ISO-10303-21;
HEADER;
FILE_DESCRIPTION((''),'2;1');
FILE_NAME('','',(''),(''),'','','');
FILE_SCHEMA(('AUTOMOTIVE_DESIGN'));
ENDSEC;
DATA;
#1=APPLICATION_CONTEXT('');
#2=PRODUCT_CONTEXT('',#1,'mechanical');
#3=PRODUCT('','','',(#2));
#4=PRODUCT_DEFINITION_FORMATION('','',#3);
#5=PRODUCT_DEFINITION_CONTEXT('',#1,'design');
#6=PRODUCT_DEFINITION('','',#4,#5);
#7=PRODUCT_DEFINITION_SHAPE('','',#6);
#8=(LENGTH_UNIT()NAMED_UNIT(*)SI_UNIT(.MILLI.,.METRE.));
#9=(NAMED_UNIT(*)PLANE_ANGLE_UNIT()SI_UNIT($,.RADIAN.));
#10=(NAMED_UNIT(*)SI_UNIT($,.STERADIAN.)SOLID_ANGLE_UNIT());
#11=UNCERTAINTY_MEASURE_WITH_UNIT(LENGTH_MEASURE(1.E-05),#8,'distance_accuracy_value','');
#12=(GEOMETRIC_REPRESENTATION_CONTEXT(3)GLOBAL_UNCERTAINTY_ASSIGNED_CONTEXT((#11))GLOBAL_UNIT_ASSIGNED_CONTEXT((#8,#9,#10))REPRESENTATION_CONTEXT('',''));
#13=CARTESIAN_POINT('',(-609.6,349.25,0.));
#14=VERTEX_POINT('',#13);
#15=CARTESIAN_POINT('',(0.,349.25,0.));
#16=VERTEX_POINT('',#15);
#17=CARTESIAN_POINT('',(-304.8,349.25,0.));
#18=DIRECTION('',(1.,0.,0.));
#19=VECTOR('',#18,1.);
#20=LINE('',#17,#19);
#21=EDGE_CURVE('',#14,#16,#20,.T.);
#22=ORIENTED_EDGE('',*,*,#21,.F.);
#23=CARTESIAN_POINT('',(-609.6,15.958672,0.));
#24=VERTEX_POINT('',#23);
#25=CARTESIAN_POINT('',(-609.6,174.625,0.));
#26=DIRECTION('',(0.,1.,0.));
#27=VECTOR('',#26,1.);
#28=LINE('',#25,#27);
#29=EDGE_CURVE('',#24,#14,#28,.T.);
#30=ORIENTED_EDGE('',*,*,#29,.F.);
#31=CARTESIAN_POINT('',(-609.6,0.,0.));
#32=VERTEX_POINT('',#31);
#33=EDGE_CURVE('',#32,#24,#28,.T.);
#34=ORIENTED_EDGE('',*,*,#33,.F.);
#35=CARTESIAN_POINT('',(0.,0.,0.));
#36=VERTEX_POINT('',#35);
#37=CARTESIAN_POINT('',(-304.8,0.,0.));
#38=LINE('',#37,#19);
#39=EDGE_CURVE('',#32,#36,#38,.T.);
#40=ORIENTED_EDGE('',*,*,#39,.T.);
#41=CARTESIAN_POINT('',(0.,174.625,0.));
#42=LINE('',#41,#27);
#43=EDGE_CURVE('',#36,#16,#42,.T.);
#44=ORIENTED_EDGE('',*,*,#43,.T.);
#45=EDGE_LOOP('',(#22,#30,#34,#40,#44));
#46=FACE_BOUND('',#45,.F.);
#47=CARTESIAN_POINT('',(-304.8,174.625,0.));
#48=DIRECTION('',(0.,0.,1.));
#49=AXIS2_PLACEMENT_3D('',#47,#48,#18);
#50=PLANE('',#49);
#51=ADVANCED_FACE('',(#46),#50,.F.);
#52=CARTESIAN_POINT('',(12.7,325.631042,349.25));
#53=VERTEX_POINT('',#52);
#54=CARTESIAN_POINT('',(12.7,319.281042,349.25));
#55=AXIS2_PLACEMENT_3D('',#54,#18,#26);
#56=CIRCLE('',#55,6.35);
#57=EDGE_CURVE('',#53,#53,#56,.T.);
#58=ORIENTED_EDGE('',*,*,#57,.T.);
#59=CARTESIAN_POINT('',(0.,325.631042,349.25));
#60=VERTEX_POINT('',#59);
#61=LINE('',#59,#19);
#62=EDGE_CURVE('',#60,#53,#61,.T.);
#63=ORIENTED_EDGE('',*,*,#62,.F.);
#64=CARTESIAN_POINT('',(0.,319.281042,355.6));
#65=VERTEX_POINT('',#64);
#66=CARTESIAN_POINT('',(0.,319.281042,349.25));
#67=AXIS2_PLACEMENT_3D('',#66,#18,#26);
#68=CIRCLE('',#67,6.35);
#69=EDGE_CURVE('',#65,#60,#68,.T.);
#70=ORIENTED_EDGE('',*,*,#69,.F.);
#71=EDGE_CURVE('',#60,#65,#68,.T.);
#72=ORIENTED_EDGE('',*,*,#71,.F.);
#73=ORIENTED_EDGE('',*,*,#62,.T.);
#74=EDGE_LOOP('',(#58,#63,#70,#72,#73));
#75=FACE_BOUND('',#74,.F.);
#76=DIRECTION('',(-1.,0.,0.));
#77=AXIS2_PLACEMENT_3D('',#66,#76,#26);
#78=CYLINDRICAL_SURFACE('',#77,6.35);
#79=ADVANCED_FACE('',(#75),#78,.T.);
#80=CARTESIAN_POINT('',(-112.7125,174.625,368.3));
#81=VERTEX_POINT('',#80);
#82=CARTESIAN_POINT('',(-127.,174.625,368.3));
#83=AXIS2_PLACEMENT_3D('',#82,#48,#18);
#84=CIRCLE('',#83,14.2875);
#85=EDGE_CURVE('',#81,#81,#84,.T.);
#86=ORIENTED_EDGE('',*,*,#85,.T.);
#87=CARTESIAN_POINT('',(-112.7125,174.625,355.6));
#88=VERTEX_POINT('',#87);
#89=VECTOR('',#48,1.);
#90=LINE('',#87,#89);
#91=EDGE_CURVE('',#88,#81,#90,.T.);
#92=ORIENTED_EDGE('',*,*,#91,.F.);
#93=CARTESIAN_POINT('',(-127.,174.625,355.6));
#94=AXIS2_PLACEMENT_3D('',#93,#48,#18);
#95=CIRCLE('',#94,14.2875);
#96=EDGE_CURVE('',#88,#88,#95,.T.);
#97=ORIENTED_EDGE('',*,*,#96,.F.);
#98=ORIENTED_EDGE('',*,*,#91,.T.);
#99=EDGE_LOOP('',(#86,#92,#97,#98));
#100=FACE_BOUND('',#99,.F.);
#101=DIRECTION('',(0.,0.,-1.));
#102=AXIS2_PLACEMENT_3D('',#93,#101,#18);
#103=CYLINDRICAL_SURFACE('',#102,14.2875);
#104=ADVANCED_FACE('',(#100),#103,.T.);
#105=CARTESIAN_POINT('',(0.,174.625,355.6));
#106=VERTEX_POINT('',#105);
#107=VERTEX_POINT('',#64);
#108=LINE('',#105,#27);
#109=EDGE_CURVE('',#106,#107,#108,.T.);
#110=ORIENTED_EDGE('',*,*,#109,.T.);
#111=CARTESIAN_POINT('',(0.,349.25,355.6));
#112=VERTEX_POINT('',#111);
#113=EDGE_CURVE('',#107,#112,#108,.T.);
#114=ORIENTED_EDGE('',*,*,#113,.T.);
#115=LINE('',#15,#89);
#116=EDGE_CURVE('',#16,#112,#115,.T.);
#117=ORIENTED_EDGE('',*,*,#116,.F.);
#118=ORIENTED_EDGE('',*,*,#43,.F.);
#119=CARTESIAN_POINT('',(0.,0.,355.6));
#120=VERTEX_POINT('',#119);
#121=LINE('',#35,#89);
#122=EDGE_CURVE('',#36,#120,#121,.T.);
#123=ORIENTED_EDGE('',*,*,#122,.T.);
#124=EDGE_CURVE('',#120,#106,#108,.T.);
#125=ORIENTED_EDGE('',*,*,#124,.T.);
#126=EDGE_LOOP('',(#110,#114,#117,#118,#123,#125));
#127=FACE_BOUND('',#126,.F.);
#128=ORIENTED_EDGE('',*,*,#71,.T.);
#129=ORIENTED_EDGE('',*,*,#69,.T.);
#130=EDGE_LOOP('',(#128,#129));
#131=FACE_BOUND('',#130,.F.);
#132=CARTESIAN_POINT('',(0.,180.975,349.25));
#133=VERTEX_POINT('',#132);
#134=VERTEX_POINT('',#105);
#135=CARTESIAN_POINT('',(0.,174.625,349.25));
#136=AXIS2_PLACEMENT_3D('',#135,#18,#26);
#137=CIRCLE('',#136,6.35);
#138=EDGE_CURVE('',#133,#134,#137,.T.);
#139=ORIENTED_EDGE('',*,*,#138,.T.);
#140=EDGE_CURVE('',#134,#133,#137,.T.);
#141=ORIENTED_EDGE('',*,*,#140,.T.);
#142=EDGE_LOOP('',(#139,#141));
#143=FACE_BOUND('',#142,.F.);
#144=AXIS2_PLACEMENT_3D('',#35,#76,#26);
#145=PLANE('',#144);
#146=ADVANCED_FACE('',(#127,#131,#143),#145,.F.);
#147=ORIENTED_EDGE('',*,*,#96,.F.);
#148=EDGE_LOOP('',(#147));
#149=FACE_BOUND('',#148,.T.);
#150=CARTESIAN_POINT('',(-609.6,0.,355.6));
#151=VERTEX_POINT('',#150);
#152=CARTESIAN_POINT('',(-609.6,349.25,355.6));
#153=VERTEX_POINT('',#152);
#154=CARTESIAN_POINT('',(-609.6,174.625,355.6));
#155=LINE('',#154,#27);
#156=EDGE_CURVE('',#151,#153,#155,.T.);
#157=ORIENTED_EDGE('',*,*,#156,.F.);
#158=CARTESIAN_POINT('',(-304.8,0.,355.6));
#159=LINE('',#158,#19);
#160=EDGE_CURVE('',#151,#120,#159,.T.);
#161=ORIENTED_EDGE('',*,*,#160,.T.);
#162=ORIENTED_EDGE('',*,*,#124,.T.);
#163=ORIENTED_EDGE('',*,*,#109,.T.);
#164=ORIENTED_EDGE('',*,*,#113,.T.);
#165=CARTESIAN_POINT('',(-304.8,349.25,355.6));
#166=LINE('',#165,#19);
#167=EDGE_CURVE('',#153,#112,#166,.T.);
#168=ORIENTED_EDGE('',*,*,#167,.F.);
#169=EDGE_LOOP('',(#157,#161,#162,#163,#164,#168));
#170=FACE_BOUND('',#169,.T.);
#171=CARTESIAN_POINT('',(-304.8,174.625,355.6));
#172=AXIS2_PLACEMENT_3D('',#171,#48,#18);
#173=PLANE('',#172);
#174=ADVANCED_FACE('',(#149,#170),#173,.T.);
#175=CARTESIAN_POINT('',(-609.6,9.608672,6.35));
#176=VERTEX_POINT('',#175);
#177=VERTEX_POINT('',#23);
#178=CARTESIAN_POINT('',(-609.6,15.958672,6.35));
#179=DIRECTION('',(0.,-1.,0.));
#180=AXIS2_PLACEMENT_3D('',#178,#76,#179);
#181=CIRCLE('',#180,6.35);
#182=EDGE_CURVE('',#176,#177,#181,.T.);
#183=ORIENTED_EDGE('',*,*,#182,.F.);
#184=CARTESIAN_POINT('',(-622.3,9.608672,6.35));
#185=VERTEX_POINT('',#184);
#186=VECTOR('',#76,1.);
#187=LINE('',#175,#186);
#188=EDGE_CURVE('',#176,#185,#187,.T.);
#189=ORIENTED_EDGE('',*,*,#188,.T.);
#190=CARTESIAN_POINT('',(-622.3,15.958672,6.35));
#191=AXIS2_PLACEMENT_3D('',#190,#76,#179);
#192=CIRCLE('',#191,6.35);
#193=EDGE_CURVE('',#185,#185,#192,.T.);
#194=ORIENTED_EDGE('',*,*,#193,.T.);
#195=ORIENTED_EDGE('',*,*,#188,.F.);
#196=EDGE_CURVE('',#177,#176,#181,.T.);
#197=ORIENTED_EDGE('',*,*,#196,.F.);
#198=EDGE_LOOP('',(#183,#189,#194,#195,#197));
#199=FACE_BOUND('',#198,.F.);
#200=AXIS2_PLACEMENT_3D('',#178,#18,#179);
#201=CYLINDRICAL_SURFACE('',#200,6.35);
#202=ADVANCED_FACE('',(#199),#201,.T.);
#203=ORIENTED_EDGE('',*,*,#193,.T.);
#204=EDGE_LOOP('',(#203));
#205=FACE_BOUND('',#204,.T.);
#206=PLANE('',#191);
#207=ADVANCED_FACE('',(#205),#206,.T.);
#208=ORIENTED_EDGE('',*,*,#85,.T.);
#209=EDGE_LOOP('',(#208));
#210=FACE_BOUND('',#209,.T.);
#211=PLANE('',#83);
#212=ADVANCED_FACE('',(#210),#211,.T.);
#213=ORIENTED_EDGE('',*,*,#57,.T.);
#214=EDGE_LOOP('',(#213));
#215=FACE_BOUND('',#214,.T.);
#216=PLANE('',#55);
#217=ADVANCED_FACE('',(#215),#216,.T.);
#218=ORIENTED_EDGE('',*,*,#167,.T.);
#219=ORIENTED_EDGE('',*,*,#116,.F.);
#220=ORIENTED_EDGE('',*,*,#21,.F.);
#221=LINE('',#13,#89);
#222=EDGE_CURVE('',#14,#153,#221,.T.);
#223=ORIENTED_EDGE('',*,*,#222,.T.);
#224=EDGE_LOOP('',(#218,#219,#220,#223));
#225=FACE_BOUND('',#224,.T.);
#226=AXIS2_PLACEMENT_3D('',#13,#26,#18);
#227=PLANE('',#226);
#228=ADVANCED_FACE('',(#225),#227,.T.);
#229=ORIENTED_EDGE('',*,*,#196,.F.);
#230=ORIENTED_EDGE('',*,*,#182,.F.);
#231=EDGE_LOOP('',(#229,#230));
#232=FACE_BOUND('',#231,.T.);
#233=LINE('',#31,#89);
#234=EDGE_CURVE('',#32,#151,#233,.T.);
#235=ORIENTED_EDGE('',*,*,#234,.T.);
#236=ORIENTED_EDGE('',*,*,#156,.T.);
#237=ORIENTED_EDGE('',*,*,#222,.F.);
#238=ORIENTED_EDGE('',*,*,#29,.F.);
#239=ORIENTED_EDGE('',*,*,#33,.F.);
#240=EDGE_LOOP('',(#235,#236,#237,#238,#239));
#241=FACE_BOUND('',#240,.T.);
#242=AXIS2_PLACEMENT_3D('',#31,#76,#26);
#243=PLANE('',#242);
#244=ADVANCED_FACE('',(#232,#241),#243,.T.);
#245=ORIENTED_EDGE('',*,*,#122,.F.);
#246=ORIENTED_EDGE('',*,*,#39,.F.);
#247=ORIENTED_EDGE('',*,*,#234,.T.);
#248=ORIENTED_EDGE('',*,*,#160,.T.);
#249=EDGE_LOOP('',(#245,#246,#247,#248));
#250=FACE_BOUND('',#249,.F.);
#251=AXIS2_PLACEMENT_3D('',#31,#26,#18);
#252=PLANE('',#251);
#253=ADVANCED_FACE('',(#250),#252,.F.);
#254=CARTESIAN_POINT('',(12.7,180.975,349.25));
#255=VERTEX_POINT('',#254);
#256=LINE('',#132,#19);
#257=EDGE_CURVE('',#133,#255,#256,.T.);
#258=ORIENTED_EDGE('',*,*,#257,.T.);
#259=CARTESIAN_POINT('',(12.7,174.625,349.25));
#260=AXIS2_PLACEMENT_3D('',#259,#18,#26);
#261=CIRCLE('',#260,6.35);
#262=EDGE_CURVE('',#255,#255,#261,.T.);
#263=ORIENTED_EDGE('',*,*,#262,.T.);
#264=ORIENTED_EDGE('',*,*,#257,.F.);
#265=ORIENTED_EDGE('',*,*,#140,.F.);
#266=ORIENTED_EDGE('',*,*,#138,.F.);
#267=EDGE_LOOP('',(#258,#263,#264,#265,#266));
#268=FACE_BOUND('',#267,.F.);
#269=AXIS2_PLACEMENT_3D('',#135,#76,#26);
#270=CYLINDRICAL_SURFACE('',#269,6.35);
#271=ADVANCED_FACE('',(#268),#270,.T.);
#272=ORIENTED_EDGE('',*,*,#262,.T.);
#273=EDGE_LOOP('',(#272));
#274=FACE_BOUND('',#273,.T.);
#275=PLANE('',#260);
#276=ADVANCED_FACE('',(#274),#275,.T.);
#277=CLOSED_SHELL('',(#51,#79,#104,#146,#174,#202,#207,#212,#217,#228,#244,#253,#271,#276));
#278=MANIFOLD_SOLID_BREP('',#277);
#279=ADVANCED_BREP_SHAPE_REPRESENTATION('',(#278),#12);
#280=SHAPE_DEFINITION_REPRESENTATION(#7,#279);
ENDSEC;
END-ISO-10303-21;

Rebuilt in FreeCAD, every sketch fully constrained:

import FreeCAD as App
import Part
import Sketcher
Q = App.Units.Quantity


def add_polygon(sketch, points):
    """Adds a closed chain of lines whose ends are joined by coincident constraints."""
    first, n = sketch.GeometryCount, len(points)
    for a, b in zip(points, points[1:] + points[:1]):
        sketch.addGeometry(Part.LineSegment(App.Vector(*a, 0), App.Vector(*b, 0)), False)
    for i in range(n):
        sketch.addConstraint(Sketcher.Constraint("Coincident", first + i, 2, first + (i + 1) % n, 1))

doc = App.newDocument("Part")
params = doc.addObject("Spreadsheet::Sheet", "Params")
for row, (alias, value) in enumerate([
    ("sketch1_width", "24 in"),
    ("sketch1_height", "13.75 in"),
    ("pad1_length", "14 in"),
    ("sketch2_diameter", "1.125 in"),
    ("pad2_length", "0.5 in"),
    ("sketch3_diameter", "0.5 in"),
    ("pad3_length", "0.5 in"),
    ("sketch4_diameter", "0.5 in"),
    ("pad4_length", "0.5 in"),
], start=1):
    params.set(f"A{row}", alias)
    params.set(f"B{row}", "=" + value)
    params.setAlias(f"B{row}", alias)

body = doc.addObject("PartDesign::Body", "Body")

sketch1 = body.newObject("Sketcher::SketchObject", "Sketch")
sketch1.AttachmentSupport = (doc.getObject("XY_Plane"), [""])
sketch1.MapMode = "FlatFace"
add_polygon(sketch1, [(-610, 349), (-610, 0), (0, 0), (0, 349)])
sketch1.addConstraint(Sketcher.Constraint("Vertical", 0))
sketch1.addConstraint(Sketcher.Constraint("Horizontal", 1))
sketch1.addConstraint(Sketcher.Constraint("Vertical", 2))
sketch1.addConstraint(Sketcher.Constraint("Horizontal", 3))
sketch1.addConstraint(Sketcher.Constraint("Coincident", 1, 2, -1, 1))
sketch1.addConstraint(Sketcher.Constraint("DistanceX", 1, 1, 1, 2, Q("24 in")))
sketch1.addConstraint(Sketcher.Constraint("DistanceY", 0, 2, 0, 1, Q("13.75 in")))
sketch1.setExpression("Constraints[9]", "Params.sketch1_width")
sketch1.setExpression("Constraints[10]", "Params.sketch1_height")
pad1 = body.newObject("PartDesign::Pad", "Pad")
pad1.Profile = sketch1
pad1.setExpression("Length", "Params.pad1_length")

sketch2 = body.newObject("Sketcher::SketchObject", "Sketch001")
sketch2.AttachmentSupport = (doc.getObject("XY_Plane"), [""])
sketch2.MapMode = "FlatFace"
sketch2.AttachmentOffset = App.Placement(App.Vector(0, 0, 14 * 25.4), App.Rotation())
sketch2.addGeometry(Part.Circle(App.Vector(-127, 175, 0), App.Vector(0, 0, 1), 14), False)
sketch2.addConstraint(Sketcher.Constraint("Diameter", 0, Q("1.125 in")))
sketch2.addConstraint(Sketcher.Constraint("DistanceX", 0, 3, -1, 1, Q("5 in")))
sketch2.addConstraint(Sketcher.Constraint("DistanceY", -1, 1, 0, 3, Q("6.875 in")))
sketch2.setExpression("Constraints[0]", "Params.sketch2_diameter")
pad2 = body.newObject("PartDesign::Pad", "Pad001")
pad2.Profile = sketch2
pad2.setExpression("Length", "Params.pad2_length")

sketch3 = body.newObject("Sketcher::SketchObject", "Sketch002")
sketch3.AttachmentSupport = (doc.getObject("YZ_Plane"), [""])
sketch3.MapMode = "FlatFace"
sketch3.addGeometry(Part.Circle(App.Vector(175, 349, 0), App.Vector(0, 0, 1), 6), False)
sketch3.addGeometry(Part.Circle(App.Vector(319, 349, 0), App.Vector(0, 0, 1), 6), False)
sketch3.addConstraint(Sketcher.Constraint("Equal", 0, 1))
sketch3.addConstraint(Sketcher.Constraint("Horizontal", 0, 3, 1, 3))
sketch3.addConstraint(Sketcher.Constraint("Diameter", 0, Q("0.5 in")))
sketch3.addConstraint(Sketcher.Constraint("DistanceY", -1, 1, 0, 3, Q("13.75 in")))
sketch3.addConstraint(Sketcher.Constraint("DistanceX", -1, 1, 0, 3, Q("6.875 in")))
sketch3.addConstraint(Sketcher.Constraint("DistanceX", -1, 1, 1, 3, 319.281042))
sketch3.setExpression("Constraints[2]", "Params.sketch3_diameter")
pad3 = body.newObject("PartDesign::Pad", "Pad002")
pad3.Profile = sketch3
pad3.setExpression("Length", "Params.pad3_length")

sketch4 = body.newObject("Sketcher::SketchObject", "Sketch003")
sketch4.AttachmentSupport = (doc.getObject("YZ_Plane"), [""])
sketch4.MapMode = "FlatFace"
sketch4.AttachmentOffset = App.Placement(App.Vector(0, 0, -24 * 25.4), App.Rotation())
sketch4.addGeometry(Part.Circle(App.Vector(16, 6, 0), App.Vector(0, 0, 1), 6), False)
sketch4.addConstraint(Sketcher.Constraint("Diameter", 0, Q("0.5 in")))
sketch4.addConstraint(Sketcher.Constraint("DistanceY", -1, 1, 0, 3, Q("0.25 in")))
sketch4.addConstraint(Sketcher.Constraint("DistanceX", -1, 1, 0, 3, 15.958672))
sketch4.setExpression("Constraints[0]", "Params.sketch4_diameter")
pad4 = body.newObject("PartDesign::Pad", "Pad003")
pad4.Profile = sketch4
pad4.setExpression("Length", "Params.pad4_length")
pad4.Reversed = True

doc.recompute()
